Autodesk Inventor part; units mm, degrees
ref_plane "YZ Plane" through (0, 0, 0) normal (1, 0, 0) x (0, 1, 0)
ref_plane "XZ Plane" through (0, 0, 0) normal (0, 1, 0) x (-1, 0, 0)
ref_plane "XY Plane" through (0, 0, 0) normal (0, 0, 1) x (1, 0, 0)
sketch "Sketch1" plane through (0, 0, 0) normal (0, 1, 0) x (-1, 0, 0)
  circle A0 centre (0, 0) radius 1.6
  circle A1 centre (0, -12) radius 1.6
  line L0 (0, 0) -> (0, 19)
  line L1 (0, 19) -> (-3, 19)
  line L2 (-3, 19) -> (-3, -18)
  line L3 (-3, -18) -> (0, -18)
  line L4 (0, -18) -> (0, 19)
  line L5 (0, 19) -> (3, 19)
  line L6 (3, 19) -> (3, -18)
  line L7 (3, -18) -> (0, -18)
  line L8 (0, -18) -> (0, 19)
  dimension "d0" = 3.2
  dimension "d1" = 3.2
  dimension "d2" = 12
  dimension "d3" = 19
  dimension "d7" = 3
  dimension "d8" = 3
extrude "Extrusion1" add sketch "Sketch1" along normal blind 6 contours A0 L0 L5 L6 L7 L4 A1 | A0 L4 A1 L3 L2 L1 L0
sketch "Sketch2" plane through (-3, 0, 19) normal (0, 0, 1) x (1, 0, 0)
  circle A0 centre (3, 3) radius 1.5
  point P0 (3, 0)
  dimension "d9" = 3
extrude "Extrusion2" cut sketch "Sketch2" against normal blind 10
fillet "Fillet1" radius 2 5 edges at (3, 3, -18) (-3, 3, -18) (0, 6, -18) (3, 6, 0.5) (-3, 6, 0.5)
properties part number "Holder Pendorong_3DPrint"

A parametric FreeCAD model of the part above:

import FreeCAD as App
import Part
import Sketcher
Q = App.Units.Quantity


def edges_at(feature, points):
    """Names of the edges that pass closest to the given points."""
    edges = feature.Shape.Edges
    near = lambda p: min(range(len(edges)), key=lambda i: edges[i].distToShape(Part.Vertex(*p))[0])
    return sorted({f"Edge{near(p) + 1}" for p in points})

doc = App.newDocument("Part")
body = doc.addObject("PartDesign::Body", "Body")

# Sketch on XZ plane
sketch1 = body.newObject("Sketcher::SketchObject", "Sketch")
sketch1.AttachmentSupport = (doc.getObject("XZ_Plane"), [""])
sketch1.MapMode = "FlatFace"
sketch1.addGeometry([
    Part.LineSegment(App.Vector(-3, 19, 0), App.Vector(3, 19, 0)),  # 0
    Part.LineSegment(App.Vector(3, 19, 0), App.Vector(3, -18, 0)),  # 1
    Part.LineSegment(App.Vector(3, -18, 0), App.Vector(-3, -18, 0)),  # 2
    Part.LineSegment(App.Vector(-3, -18, 0), App.Vector(-3, 19, 0)),  # 3
    Part.Circle(App.Vector(0, 0, 0), App.Vector(0, 0, 1), 1.6),  # 4
    Part.Circle(App.Vector(0, -12, 0), App.Vector(0, 0, 1), 1.6),  # 5
], False)
sketch1.addConstraint([
    Sketcher.Constraint("Coincident", 0, 2, 1, 1),
    Sketcher.Constraint("Coincident", 1, 2, 2, 1),
    Sketcher.Constraint("Coincident", 2, 2, 3, 1),
    Sketcher.Constraint("Coincident", 3, 2, 0, 1),
    Sketcher.Constraint("Horizontal", 0),
    Sketcher.Constraint("Vertical", 1),
    Sketcher.Constraint("Horizontal", 2),
    Sketcher.Constraint("Vertical", 3),
    Sketcher.Constraint("Coincident", 4, 3, -1, 1),
    Sketcher.Constraint("Equal", 4, 5),
    Sketcher.Constraint("PointOnObject", 5, 3, -2),
    Sketcher.Constraint("Diameter", 4, Q("3.2 mm")),
    Sketcher.Constraint("DistanceY", 5, 3, -1, 1, Q("12 mm")),
    Sketcher.Constraint("DistanceX", -1, 1, 0, 2, Q("3 mm")),
    Sketcher.Constraint("DistanceY", -1, 1, 0, 2, Q("19 mm")),
    Sketcher.Constraint("DistanceX", 2, 2, -1, 1, Q("3 mm")),
    Sketcher.Constraint("DistanceY", 1, 2, 1, 1, Q("37 mm")),
])
pad1 = body.newObject("PartDesign::Pad", "Pad")
pad1.Profile = sketch1
pad1.Length = 6
pad1.Reversed = True

# Sketch on XY plane
sketch2 = body.newObject("Sketcher::SketchObject", "Sketch001")
sketch2.AttachmentSupport = (doc.getObject("XY_Plane"), [""])
sketch2.MapMode = "FlatFace"
sketch2.AttachmentOffset = App.Placement(App.Vector(0, 0, 19), App.Rotation())
sketch2.addGeometry(Part.Circle(App.Vector(0, 3, 0), App.Vector(0, 0, 1), 1.5), False)
sketch2.addConstraint([
    Sketcher.Constraint("PointOnObject", 0, 3, -2),
    Sketcher.Constraint("Diameter", 0, Q("3 mm")),
    Sketcher.Constraint("DistanceY", -1, 1, 0, 3, Q("3 mm")),
])
pocket1 = body.newObject("PartDesign::Pocket", "Pocket")
pocket1.Profile = sketch2
pocket1.Length = 10
doc.recompute()

fillet = body.newObject("PartDesign::Fillet", "Fillet")
fillet.Base = (pocket1, edges_at(pocket1, [
    (3, 3, -18),
    (-3, 3, -18),
    (0, 6, -18),
    (3, 6, 0.5),
    (-3, 6, 0.5),
]))
fillet.Radius = 2

doc.recompute()
